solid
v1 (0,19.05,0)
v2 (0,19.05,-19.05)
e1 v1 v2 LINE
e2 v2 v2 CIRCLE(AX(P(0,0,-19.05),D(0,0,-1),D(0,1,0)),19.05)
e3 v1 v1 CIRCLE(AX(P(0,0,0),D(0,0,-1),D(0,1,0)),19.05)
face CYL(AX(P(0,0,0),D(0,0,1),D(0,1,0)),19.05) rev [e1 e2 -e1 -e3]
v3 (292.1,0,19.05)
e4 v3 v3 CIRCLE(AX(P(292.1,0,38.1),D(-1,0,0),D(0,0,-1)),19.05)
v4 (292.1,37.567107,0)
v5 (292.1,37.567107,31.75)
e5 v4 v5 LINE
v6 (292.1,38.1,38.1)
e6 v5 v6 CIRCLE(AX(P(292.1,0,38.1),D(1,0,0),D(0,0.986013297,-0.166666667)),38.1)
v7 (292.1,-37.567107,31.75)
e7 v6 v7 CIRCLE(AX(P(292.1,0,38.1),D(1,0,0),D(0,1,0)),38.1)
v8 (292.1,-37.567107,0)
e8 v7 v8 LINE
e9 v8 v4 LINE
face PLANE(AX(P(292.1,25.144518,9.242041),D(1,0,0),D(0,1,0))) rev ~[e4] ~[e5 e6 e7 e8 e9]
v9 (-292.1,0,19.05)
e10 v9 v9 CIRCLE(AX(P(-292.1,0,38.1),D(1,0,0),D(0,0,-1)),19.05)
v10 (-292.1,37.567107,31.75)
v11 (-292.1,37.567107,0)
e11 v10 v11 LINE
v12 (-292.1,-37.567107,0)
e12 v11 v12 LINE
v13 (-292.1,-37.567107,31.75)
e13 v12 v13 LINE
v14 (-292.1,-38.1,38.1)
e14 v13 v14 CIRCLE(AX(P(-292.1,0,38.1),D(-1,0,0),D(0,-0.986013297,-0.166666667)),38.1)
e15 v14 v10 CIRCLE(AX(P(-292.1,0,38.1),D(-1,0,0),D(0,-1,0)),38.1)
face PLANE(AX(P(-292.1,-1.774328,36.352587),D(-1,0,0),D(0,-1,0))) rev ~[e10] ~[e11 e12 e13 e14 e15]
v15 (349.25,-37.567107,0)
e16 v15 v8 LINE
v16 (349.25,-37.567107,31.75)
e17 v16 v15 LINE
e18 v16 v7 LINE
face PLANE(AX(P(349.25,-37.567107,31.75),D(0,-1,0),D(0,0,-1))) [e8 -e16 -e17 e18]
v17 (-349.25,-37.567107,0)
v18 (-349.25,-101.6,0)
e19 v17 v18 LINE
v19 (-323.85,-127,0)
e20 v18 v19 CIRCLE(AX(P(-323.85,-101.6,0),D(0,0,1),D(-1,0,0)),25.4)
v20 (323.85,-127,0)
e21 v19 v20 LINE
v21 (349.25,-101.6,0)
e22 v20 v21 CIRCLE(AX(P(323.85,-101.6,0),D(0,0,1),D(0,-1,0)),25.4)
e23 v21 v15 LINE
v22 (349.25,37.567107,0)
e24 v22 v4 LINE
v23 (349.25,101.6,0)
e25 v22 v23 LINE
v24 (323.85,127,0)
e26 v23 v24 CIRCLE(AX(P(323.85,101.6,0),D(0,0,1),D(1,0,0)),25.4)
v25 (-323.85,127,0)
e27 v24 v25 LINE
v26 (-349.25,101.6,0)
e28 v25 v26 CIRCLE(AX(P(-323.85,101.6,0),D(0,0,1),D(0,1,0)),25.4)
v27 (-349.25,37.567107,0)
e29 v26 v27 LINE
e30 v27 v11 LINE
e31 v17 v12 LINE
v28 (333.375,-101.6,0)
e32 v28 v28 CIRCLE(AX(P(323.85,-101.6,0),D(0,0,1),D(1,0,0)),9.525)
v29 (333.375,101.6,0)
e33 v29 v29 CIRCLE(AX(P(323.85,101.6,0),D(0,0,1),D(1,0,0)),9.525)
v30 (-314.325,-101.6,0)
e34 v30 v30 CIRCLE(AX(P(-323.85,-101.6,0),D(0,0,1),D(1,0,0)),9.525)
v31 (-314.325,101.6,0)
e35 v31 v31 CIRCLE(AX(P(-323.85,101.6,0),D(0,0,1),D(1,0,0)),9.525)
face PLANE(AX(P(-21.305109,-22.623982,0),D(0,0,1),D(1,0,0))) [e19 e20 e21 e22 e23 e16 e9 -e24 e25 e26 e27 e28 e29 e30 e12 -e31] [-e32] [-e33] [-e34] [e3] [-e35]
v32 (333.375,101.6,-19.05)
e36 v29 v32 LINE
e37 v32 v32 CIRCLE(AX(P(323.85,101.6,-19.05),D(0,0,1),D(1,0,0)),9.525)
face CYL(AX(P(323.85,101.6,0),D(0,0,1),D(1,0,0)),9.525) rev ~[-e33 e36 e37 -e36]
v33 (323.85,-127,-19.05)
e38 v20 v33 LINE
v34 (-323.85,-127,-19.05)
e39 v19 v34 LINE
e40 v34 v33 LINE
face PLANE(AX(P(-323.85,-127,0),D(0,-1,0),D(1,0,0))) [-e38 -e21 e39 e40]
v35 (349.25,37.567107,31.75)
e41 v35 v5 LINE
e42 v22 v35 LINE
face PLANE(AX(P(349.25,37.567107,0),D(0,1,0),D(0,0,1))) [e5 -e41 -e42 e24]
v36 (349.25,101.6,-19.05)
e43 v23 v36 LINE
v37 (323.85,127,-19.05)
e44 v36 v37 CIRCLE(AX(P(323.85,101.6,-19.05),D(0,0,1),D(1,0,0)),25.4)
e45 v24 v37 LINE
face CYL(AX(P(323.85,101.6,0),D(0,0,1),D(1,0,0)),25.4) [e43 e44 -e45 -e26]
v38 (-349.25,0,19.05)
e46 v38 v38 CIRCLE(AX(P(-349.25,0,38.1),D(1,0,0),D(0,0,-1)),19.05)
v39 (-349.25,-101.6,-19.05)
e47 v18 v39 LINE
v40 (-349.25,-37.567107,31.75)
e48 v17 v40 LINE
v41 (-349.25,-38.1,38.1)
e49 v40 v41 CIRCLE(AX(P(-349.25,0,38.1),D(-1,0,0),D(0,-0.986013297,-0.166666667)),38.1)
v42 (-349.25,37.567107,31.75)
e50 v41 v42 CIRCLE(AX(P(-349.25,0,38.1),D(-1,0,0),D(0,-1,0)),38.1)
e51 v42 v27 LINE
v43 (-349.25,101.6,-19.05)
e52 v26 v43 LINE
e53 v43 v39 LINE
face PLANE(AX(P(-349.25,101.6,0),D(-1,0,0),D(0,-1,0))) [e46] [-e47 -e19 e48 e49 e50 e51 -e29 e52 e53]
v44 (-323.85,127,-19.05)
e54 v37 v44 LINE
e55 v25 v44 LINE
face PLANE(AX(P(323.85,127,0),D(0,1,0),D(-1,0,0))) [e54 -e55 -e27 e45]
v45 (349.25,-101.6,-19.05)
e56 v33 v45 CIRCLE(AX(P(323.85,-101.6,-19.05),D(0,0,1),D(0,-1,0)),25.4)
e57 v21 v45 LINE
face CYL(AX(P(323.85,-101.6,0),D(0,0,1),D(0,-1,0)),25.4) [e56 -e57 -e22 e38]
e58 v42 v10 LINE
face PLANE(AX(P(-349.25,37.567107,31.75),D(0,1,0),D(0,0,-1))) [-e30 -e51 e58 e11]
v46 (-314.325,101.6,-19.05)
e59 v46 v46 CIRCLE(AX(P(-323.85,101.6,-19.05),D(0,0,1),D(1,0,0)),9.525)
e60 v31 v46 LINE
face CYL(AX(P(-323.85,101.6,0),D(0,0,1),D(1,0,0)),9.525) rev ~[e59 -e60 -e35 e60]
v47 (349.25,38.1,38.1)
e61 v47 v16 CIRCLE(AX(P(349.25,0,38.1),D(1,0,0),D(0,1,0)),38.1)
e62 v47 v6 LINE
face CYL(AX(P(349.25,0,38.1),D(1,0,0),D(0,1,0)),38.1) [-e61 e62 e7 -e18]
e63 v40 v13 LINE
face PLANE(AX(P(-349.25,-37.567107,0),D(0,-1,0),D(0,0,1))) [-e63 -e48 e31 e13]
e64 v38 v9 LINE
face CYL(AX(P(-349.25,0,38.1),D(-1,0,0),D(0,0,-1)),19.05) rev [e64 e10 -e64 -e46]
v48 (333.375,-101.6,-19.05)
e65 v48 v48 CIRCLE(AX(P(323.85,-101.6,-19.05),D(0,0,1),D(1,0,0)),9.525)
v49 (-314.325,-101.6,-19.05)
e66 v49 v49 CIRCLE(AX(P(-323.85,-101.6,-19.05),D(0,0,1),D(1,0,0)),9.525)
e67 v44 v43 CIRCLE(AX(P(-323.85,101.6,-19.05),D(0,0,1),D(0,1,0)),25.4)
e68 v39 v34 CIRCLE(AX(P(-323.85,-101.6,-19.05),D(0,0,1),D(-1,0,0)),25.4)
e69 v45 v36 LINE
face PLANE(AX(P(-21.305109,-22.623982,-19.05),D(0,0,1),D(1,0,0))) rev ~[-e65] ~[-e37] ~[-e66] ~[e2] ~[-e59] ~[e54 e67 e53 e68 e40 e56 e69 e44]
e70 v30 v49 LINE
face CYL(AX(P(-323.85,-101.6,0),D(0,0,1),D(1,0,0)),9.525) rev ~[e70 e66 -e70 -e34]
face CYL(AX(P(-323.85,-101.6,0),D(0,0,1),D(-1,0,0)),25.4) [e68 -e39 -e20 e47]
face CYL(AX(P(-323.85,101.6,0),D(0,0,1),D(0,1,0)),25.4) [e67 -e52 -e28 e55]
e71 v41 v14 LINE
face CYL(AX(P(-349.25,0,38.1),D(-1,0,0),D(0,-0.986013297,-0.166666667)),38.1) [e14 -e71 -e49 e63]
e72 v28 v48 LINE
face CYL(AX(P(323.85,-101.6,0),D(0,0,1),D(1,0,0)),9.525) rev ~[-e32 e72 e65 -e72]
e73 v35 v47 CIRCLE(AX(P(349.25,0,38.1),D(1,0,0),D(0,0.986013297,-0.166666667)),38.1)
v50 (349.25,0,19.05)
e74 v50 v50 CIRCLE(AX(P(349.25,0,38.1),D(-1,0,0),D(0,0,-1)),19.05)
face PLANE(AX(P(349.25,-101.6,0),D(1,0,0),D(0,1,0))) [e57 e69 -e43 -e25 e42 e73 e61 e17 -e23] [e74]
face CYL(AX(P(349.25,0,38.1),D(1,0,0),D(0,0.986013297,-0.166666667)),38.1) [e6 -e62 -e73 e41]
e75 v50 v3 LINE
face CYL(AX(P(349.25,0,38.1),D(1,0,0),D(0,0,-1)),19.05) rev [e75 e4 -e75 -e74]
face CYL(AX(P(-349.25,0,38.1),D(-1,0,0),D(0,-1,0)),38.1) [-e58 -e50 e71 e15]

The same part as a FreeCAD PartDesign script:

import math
import FreeCAD as App
import Part
import Sketcher
Q = App.Units.Quantity

doc = App.newDocument("Part")
body = doc.addObject("PartDesign::Body", "Body")

# Sketch on XY plane
sketch1 = body.newObject("Sketcher::SketchObject", "Sketch")
sketch1.AttachmentSupport = (doc.getObject("XY_Plane"), [""])
sketch1.MapMode = "FlatFace"
sketch1.addGeometry(Part.LineSegment(App.Vector(349, -102, 0), App.Vector(349, 102, 0)), False)
sketch1.addGeometry(Part.ArcOfCircle(Part.Circle(App.Vector(324, 102, 0), App.Vector(0, 0, 1), 25), math.radians(0), math.radians(90)), False)
sketch1.addGeometry(Part.LineSegment(App.Vector(324, 127, 0), App.Vector(-324, 127, 0)), False)
sketch1.addGeometry(Part.ArcOfCircle(Part.Circle(App.Vector(-324, 102, 0), App.Vector(0, 0, 1), 25), math.radians(90), math.radians(180)), False)
sketch1.addGeometry(Part.LineSegment(App.Vector(-349, 102, 0), App.Vector(-349, -102, 0)), False)
sketch1.addGeometry(Part.ArcOfCircle(Part.Circle(App.Vector(-324, -102, 0), App.Vector(0, 0, 1), 25), math.radians(180), math.radians(270)), False)
sketch1.addGeometry(Part.LineSegment(App.Vector(-324, -127, 0), App.Vector(324, -127, 0)), False)
sketch1.addGeometry(Part.ArcOfCircle(Part.Circle(App.Vector(324, -102, 0), App.Vector(0, 0, 1), 25), math.radians(-90), math.radians(0)), False)
sketch1.addGeometry(Part.Circle(App.Vector(-324, -102, 0), App.Vector(0, 0, 1), 10), False)
sketch1.addGeometry(Part.Circle(App.Vector(0, 0, 0), App.Vector(0, 0, 1), 19), False)
sketch1.addGeometry(Part.Circle(App.Vector(324, -102, 0), App.Vector(0, 0, 1), 10), False)
sketch1.addGeometry(Part.Circle(App.Vector(-324, 102, 0), App.Vector(0, 0, 1), 10), False)
sketch1.addGeometry(Part.Circle(App.Vector(324, 102, 0), App.Vector(0, 0, 1), 10), False)
sketch1.addConstraint(Sketcher.Constraint("Tangent", 0, 2, 1, 1))
sketch1.addConstraint(Sketcher.Constraint("Tangent", 1, 2, 2, 1))
sketch1.addConstraint(Sketcher.Constraint("Tangent", 2, 2, 3, 1))
sketch1.addConstraint(Sketcher.Constraint("Tangent", 3, 2, 4, 1))
sketch1.addConstraint(Sketcher.Constraint("Tangent", 4, 2, 5, 1))
sketch1.addConstraint(Sketcher.Constraint("Tangent", 5, 2, 6, 1))
sketch1.addConstraint(Sketcher.Constraint("Tangent", 6, 2, 7, 1))
sketch1.addConstraint(Sketcher.Constraint("Tangent", 7, 2, 0, 1))
sketch1.addConstraint(Sketcher.Constraint("Vertical", 0))
sketch1.addConstraint(Sketcher.Constraint("Horizontal", 2))
sketch1.addConstraint(Sketcher.Constraint("Vertical", 4))
sketch1.addConstraint(Sketcher.Constraint("Horizontal", 6))
sketch1.addConstraint(Sketcher.Constraint("Coincident", 9, 3, -1, 1))
sketch1.addConstraint(Sketcher.Constraint("Coincident", 8, 3, 5, 3))
sketch1.addConstraint(Sketcher.Constraint("Coincident", 10, 3, 7, 3))
sketch1.addConstraint(Sketcher.Constraint("Coincident", 11, 3, 3, 3))
sketch1.addConstraint(Sketcher.Constraint("Coincident", 12, 3, 1, 3))
sketch1.addConstraint(Sketcher.Constraint("Equal", 1, 3))
sketch1.addConstraint(Sketcher.Constraint("Equal", 3, 5))
sketch1.addConstraint(Sketcher.Constraint("Equal", 5, 7))
sketch1.addConstraint(Sketcher.Constraint("Equal", 8, 10))
sketch1.addConstraint(Sketcher.Constraint("Equal", 10, 11))
sketch1.addConstraint(Sketcher.Constraint("Equal", 11, 12))
sketch1.addConstraint(Sketcher.Constraint("Symmetric", 1, 3, 5, 3, -1, 1))
sketch1.addConstraint(Sketcher.Constraint("Radius", 1, Q("1 in")))
sketch1.addConstraint(Sketcher.Constraint("Diameter", 9, Q("1.5 in")))
sketch1.addConstraint(Sketcher.Constraint("Diameter", 8, Q("0.75 in")))
sketch1.addConstraint(Sketcher.Constraint("DistanceY", 0, 1, 0, 2, Q("8 in")))
sketch1.addConstraint(Sketcher.Constraint("DistanceX", 2, 2, 2, 1, Q("25.5 in")))
pad1 = body.newObject("PartDesign::Pad", "Pad")
pad1.Profile = sketch1
pad1.Length = Q("0.75 in")
pad1.Reversed = True

# Sketch on YZ plane
sketch2 = body.newObject("Sketcher::SketchObject", "Sketch001")
sketch2.AttachmentSupport = (doc.getObject("YZ_Plane"), [""])
sketch2.MapMode = "FlatFace"
sketch2.AttachmentOffset = App.Placement(App.Vector(0, 0, -13.75 * 25.4), App.Rotation())
sketch2.addGeometry(Part.ArcOfCircle(Part.Circle(App.Vector(0, 38, 0), App.Vector(0, 0, 1), 38), math.radians(-180), math.radians(-170.41)), False)
sketch2.addGeometry(Part.ArcOfCircle(Part.Circle(App.Vector(0, 38, 0), App.Vector(0, 0, 1), 38), math.radians(-10), math.radians(180)), False)
sketch2.addGeometry(Part.LineSegment(App.Vector(38, 32, 0), App.Vector(38, 0, 0)), False)
sketch2.addGeometry(Part.LineSegment(App.Vector(38, 0, 0), App.Vector(-38, 0, 0)), False)
sketch2.addGeometry(Part.LineSegment(App.Vector(-38, 0, 0), App.Vector(-38, 32, 0)), False)
sketch2.addGeometry(Part.Circle(App.Vector(0, 38, 0), App.Vector(0, 0, 1), 19), False)
sketch2.addConstraint(Sketcher.Constraint("Tangent", 0, 1, 1, 2))
sketch2.addConstraint(Sketcher.Constraint("Coincident", 1, 1, 2, 1))
sketch2.addConstraint(Sketcher.Constraint("Coincident", 2, 2, 3, 1))
sketch2.addConstraint(Sketcher.Constraint("Coincident", 3, 2, 4, 1))
sketch2.addConstraint(Sketcher.Constraint("Coincident", 4, 2, 0, 2))
sketch2.addConstraint(Sketcher.Constraint("Vertical", 2))
sketch2.addConstraint(Sketcher.Constraint("Horizontal", 3))
sketch2.addConstraint(Sketcher.Constraint("Vertical", 4))
sketch2.addConstraint(Sketcher.Constraint("Coincident", 5, 3, 0, 3))
sketch2.addConstraint(Sketcher.Constraint("Equal", 0, 1))
sketch2.addConstraint(Sketcher.Constraint("Symmetric", 2, 2, 3, 2, -1, 1))
sketch2.addConstraint(Sketcher.Constraint("PointOnObject", 0, 3, -2))
sketch2.addConstraint(Sketcher.Constraint("Horizontal", 5, 3, 0, 1))
sketch2.addConstraint(Sketcher.Constraint("Diameter", 5, Q("1.5 in")))
sketch2.addConstraint(Sketcher.Constraint("Radius", 0, Q("1.5 in")))
sketch2.addConstraint(Sketcher.Constraint("DistanceY", 2, 2, 2, 1, Q("1.25 in")))
sketch2.addConstraint(Sketcher.Constraint("DistanceY", -1, 1, 0, 3, Q("1.5 in")))
pad2 = body.newObject("PartDesign::Pad", "Pad001")
pad2.Profile = sketch2
pad2.Length = Q("2.25 in")

# Sketch on YZ plane
sketch3 = body.newObject("Sketcher::SketchObject", "Sketch002")
sketch3.AttachmentSupport = (doc.getObject("YZ_Plane"), [""])
sketch3.MapMode = "FlatFace"
sketch3.AttachmentOffset = App.Placement(App.Vector(0, 0, 13.75 * 25.4), App.Rotation())
sketch3.addGeometry(Part.LineSegment(App.Vector(38, 0, 0), App.Vector(38, 32, 0)), False)
sketch3.addGeometry(Part.ArcOfCircle(Part.Circle(App.Vector(0, 38, 0), App.Vector(0, 0, 1), 38), math.radians(-9.59), math.radians(0)), False)
sketch3.addGeometry(Part.ArcOfCircle(Part.Circle(App.Vector(0, 38, 0), App.Vector(0, 0, 1), 38), math.radians(0), math.radians(190)), False)
sketch3.addGeometry(Part.LineSegment(App.Vector(-38, 32, 0), App.Vector(-38, 0, 0)), False)
sketch3.addGeometry(Part.LineSegment(App.Vector(-38, 0, 0), App.Vector(38, 0, 0)), False)
sketch3.addGeometry(Part.Circle(App.Vector(0, 38, 0), App.Vector(0, 0, 1), 19), False)
sketch3.addConstraint(Sketcher.Constraint("Coincident", 0, 2, 1, 1))
sketch3.addConstraint(Sketcher.Constraint("Tangent", 1, 2, 2, 1))
sketch3.addConstraint(Sketcher.Constraint("Coincident", 2, 2, 3, 1))
sketch3.addConstraint(Sketcher.Constraint("Coincident", 3, 2, 4, 1))
sketch3.addConstraint(Sketcher.Constraint("Coincident", 4, 2, 0, 1))
sketch3.addConstraint(Sketcher.Constraint("Vertical", 0))
sketch3.addConstraint(Sketcher.Constraint("Vertical", 3))
sketch3.addConstraint(Sketcher.Constraint("Horizontal", 4))
sketch3.addConstraint(Sketcher.Constraint("Coincident", 5, 3, 1, 3))
sketch3.addConstraint(Sketcher.Constraint("Equal", 1, 2))
sketch3.addConstraint(Sketcher.Constraint("Symmetric", 3, 2, 4, 2, -1, 1))
sketch3.addConstraint(Sketcher.Constraint("PointOnObject", 1, 3, -2))
sketch3.addConstraint(Sketcher.Constraint("Horizontal", 5, 3, 1, 2))
sketch3.addConstraint(Sketcher.Constraint("Diameter", 5, Q("1.5 in")))
sketch3.addConstraint(Sketcher.Constraint("Radius", 1, Q("1.5 in")))
sketch3.addConstraint(Sketcher.Constraint("DistanceY", 0, 1, 0, 2, Q("1.25 in")))
sketch3.addConstraint(Sketcher.Constraint("DistanceY", -1, 1, 1, 3, Q("1.5 in")))
pad3 = body.newObject("PartDesign::Pad", "Pad002")
pad3.Profile = sketch3
pad3.Length = Q("2.25 in")
pad3.Reversed = True

doc.recompute()
